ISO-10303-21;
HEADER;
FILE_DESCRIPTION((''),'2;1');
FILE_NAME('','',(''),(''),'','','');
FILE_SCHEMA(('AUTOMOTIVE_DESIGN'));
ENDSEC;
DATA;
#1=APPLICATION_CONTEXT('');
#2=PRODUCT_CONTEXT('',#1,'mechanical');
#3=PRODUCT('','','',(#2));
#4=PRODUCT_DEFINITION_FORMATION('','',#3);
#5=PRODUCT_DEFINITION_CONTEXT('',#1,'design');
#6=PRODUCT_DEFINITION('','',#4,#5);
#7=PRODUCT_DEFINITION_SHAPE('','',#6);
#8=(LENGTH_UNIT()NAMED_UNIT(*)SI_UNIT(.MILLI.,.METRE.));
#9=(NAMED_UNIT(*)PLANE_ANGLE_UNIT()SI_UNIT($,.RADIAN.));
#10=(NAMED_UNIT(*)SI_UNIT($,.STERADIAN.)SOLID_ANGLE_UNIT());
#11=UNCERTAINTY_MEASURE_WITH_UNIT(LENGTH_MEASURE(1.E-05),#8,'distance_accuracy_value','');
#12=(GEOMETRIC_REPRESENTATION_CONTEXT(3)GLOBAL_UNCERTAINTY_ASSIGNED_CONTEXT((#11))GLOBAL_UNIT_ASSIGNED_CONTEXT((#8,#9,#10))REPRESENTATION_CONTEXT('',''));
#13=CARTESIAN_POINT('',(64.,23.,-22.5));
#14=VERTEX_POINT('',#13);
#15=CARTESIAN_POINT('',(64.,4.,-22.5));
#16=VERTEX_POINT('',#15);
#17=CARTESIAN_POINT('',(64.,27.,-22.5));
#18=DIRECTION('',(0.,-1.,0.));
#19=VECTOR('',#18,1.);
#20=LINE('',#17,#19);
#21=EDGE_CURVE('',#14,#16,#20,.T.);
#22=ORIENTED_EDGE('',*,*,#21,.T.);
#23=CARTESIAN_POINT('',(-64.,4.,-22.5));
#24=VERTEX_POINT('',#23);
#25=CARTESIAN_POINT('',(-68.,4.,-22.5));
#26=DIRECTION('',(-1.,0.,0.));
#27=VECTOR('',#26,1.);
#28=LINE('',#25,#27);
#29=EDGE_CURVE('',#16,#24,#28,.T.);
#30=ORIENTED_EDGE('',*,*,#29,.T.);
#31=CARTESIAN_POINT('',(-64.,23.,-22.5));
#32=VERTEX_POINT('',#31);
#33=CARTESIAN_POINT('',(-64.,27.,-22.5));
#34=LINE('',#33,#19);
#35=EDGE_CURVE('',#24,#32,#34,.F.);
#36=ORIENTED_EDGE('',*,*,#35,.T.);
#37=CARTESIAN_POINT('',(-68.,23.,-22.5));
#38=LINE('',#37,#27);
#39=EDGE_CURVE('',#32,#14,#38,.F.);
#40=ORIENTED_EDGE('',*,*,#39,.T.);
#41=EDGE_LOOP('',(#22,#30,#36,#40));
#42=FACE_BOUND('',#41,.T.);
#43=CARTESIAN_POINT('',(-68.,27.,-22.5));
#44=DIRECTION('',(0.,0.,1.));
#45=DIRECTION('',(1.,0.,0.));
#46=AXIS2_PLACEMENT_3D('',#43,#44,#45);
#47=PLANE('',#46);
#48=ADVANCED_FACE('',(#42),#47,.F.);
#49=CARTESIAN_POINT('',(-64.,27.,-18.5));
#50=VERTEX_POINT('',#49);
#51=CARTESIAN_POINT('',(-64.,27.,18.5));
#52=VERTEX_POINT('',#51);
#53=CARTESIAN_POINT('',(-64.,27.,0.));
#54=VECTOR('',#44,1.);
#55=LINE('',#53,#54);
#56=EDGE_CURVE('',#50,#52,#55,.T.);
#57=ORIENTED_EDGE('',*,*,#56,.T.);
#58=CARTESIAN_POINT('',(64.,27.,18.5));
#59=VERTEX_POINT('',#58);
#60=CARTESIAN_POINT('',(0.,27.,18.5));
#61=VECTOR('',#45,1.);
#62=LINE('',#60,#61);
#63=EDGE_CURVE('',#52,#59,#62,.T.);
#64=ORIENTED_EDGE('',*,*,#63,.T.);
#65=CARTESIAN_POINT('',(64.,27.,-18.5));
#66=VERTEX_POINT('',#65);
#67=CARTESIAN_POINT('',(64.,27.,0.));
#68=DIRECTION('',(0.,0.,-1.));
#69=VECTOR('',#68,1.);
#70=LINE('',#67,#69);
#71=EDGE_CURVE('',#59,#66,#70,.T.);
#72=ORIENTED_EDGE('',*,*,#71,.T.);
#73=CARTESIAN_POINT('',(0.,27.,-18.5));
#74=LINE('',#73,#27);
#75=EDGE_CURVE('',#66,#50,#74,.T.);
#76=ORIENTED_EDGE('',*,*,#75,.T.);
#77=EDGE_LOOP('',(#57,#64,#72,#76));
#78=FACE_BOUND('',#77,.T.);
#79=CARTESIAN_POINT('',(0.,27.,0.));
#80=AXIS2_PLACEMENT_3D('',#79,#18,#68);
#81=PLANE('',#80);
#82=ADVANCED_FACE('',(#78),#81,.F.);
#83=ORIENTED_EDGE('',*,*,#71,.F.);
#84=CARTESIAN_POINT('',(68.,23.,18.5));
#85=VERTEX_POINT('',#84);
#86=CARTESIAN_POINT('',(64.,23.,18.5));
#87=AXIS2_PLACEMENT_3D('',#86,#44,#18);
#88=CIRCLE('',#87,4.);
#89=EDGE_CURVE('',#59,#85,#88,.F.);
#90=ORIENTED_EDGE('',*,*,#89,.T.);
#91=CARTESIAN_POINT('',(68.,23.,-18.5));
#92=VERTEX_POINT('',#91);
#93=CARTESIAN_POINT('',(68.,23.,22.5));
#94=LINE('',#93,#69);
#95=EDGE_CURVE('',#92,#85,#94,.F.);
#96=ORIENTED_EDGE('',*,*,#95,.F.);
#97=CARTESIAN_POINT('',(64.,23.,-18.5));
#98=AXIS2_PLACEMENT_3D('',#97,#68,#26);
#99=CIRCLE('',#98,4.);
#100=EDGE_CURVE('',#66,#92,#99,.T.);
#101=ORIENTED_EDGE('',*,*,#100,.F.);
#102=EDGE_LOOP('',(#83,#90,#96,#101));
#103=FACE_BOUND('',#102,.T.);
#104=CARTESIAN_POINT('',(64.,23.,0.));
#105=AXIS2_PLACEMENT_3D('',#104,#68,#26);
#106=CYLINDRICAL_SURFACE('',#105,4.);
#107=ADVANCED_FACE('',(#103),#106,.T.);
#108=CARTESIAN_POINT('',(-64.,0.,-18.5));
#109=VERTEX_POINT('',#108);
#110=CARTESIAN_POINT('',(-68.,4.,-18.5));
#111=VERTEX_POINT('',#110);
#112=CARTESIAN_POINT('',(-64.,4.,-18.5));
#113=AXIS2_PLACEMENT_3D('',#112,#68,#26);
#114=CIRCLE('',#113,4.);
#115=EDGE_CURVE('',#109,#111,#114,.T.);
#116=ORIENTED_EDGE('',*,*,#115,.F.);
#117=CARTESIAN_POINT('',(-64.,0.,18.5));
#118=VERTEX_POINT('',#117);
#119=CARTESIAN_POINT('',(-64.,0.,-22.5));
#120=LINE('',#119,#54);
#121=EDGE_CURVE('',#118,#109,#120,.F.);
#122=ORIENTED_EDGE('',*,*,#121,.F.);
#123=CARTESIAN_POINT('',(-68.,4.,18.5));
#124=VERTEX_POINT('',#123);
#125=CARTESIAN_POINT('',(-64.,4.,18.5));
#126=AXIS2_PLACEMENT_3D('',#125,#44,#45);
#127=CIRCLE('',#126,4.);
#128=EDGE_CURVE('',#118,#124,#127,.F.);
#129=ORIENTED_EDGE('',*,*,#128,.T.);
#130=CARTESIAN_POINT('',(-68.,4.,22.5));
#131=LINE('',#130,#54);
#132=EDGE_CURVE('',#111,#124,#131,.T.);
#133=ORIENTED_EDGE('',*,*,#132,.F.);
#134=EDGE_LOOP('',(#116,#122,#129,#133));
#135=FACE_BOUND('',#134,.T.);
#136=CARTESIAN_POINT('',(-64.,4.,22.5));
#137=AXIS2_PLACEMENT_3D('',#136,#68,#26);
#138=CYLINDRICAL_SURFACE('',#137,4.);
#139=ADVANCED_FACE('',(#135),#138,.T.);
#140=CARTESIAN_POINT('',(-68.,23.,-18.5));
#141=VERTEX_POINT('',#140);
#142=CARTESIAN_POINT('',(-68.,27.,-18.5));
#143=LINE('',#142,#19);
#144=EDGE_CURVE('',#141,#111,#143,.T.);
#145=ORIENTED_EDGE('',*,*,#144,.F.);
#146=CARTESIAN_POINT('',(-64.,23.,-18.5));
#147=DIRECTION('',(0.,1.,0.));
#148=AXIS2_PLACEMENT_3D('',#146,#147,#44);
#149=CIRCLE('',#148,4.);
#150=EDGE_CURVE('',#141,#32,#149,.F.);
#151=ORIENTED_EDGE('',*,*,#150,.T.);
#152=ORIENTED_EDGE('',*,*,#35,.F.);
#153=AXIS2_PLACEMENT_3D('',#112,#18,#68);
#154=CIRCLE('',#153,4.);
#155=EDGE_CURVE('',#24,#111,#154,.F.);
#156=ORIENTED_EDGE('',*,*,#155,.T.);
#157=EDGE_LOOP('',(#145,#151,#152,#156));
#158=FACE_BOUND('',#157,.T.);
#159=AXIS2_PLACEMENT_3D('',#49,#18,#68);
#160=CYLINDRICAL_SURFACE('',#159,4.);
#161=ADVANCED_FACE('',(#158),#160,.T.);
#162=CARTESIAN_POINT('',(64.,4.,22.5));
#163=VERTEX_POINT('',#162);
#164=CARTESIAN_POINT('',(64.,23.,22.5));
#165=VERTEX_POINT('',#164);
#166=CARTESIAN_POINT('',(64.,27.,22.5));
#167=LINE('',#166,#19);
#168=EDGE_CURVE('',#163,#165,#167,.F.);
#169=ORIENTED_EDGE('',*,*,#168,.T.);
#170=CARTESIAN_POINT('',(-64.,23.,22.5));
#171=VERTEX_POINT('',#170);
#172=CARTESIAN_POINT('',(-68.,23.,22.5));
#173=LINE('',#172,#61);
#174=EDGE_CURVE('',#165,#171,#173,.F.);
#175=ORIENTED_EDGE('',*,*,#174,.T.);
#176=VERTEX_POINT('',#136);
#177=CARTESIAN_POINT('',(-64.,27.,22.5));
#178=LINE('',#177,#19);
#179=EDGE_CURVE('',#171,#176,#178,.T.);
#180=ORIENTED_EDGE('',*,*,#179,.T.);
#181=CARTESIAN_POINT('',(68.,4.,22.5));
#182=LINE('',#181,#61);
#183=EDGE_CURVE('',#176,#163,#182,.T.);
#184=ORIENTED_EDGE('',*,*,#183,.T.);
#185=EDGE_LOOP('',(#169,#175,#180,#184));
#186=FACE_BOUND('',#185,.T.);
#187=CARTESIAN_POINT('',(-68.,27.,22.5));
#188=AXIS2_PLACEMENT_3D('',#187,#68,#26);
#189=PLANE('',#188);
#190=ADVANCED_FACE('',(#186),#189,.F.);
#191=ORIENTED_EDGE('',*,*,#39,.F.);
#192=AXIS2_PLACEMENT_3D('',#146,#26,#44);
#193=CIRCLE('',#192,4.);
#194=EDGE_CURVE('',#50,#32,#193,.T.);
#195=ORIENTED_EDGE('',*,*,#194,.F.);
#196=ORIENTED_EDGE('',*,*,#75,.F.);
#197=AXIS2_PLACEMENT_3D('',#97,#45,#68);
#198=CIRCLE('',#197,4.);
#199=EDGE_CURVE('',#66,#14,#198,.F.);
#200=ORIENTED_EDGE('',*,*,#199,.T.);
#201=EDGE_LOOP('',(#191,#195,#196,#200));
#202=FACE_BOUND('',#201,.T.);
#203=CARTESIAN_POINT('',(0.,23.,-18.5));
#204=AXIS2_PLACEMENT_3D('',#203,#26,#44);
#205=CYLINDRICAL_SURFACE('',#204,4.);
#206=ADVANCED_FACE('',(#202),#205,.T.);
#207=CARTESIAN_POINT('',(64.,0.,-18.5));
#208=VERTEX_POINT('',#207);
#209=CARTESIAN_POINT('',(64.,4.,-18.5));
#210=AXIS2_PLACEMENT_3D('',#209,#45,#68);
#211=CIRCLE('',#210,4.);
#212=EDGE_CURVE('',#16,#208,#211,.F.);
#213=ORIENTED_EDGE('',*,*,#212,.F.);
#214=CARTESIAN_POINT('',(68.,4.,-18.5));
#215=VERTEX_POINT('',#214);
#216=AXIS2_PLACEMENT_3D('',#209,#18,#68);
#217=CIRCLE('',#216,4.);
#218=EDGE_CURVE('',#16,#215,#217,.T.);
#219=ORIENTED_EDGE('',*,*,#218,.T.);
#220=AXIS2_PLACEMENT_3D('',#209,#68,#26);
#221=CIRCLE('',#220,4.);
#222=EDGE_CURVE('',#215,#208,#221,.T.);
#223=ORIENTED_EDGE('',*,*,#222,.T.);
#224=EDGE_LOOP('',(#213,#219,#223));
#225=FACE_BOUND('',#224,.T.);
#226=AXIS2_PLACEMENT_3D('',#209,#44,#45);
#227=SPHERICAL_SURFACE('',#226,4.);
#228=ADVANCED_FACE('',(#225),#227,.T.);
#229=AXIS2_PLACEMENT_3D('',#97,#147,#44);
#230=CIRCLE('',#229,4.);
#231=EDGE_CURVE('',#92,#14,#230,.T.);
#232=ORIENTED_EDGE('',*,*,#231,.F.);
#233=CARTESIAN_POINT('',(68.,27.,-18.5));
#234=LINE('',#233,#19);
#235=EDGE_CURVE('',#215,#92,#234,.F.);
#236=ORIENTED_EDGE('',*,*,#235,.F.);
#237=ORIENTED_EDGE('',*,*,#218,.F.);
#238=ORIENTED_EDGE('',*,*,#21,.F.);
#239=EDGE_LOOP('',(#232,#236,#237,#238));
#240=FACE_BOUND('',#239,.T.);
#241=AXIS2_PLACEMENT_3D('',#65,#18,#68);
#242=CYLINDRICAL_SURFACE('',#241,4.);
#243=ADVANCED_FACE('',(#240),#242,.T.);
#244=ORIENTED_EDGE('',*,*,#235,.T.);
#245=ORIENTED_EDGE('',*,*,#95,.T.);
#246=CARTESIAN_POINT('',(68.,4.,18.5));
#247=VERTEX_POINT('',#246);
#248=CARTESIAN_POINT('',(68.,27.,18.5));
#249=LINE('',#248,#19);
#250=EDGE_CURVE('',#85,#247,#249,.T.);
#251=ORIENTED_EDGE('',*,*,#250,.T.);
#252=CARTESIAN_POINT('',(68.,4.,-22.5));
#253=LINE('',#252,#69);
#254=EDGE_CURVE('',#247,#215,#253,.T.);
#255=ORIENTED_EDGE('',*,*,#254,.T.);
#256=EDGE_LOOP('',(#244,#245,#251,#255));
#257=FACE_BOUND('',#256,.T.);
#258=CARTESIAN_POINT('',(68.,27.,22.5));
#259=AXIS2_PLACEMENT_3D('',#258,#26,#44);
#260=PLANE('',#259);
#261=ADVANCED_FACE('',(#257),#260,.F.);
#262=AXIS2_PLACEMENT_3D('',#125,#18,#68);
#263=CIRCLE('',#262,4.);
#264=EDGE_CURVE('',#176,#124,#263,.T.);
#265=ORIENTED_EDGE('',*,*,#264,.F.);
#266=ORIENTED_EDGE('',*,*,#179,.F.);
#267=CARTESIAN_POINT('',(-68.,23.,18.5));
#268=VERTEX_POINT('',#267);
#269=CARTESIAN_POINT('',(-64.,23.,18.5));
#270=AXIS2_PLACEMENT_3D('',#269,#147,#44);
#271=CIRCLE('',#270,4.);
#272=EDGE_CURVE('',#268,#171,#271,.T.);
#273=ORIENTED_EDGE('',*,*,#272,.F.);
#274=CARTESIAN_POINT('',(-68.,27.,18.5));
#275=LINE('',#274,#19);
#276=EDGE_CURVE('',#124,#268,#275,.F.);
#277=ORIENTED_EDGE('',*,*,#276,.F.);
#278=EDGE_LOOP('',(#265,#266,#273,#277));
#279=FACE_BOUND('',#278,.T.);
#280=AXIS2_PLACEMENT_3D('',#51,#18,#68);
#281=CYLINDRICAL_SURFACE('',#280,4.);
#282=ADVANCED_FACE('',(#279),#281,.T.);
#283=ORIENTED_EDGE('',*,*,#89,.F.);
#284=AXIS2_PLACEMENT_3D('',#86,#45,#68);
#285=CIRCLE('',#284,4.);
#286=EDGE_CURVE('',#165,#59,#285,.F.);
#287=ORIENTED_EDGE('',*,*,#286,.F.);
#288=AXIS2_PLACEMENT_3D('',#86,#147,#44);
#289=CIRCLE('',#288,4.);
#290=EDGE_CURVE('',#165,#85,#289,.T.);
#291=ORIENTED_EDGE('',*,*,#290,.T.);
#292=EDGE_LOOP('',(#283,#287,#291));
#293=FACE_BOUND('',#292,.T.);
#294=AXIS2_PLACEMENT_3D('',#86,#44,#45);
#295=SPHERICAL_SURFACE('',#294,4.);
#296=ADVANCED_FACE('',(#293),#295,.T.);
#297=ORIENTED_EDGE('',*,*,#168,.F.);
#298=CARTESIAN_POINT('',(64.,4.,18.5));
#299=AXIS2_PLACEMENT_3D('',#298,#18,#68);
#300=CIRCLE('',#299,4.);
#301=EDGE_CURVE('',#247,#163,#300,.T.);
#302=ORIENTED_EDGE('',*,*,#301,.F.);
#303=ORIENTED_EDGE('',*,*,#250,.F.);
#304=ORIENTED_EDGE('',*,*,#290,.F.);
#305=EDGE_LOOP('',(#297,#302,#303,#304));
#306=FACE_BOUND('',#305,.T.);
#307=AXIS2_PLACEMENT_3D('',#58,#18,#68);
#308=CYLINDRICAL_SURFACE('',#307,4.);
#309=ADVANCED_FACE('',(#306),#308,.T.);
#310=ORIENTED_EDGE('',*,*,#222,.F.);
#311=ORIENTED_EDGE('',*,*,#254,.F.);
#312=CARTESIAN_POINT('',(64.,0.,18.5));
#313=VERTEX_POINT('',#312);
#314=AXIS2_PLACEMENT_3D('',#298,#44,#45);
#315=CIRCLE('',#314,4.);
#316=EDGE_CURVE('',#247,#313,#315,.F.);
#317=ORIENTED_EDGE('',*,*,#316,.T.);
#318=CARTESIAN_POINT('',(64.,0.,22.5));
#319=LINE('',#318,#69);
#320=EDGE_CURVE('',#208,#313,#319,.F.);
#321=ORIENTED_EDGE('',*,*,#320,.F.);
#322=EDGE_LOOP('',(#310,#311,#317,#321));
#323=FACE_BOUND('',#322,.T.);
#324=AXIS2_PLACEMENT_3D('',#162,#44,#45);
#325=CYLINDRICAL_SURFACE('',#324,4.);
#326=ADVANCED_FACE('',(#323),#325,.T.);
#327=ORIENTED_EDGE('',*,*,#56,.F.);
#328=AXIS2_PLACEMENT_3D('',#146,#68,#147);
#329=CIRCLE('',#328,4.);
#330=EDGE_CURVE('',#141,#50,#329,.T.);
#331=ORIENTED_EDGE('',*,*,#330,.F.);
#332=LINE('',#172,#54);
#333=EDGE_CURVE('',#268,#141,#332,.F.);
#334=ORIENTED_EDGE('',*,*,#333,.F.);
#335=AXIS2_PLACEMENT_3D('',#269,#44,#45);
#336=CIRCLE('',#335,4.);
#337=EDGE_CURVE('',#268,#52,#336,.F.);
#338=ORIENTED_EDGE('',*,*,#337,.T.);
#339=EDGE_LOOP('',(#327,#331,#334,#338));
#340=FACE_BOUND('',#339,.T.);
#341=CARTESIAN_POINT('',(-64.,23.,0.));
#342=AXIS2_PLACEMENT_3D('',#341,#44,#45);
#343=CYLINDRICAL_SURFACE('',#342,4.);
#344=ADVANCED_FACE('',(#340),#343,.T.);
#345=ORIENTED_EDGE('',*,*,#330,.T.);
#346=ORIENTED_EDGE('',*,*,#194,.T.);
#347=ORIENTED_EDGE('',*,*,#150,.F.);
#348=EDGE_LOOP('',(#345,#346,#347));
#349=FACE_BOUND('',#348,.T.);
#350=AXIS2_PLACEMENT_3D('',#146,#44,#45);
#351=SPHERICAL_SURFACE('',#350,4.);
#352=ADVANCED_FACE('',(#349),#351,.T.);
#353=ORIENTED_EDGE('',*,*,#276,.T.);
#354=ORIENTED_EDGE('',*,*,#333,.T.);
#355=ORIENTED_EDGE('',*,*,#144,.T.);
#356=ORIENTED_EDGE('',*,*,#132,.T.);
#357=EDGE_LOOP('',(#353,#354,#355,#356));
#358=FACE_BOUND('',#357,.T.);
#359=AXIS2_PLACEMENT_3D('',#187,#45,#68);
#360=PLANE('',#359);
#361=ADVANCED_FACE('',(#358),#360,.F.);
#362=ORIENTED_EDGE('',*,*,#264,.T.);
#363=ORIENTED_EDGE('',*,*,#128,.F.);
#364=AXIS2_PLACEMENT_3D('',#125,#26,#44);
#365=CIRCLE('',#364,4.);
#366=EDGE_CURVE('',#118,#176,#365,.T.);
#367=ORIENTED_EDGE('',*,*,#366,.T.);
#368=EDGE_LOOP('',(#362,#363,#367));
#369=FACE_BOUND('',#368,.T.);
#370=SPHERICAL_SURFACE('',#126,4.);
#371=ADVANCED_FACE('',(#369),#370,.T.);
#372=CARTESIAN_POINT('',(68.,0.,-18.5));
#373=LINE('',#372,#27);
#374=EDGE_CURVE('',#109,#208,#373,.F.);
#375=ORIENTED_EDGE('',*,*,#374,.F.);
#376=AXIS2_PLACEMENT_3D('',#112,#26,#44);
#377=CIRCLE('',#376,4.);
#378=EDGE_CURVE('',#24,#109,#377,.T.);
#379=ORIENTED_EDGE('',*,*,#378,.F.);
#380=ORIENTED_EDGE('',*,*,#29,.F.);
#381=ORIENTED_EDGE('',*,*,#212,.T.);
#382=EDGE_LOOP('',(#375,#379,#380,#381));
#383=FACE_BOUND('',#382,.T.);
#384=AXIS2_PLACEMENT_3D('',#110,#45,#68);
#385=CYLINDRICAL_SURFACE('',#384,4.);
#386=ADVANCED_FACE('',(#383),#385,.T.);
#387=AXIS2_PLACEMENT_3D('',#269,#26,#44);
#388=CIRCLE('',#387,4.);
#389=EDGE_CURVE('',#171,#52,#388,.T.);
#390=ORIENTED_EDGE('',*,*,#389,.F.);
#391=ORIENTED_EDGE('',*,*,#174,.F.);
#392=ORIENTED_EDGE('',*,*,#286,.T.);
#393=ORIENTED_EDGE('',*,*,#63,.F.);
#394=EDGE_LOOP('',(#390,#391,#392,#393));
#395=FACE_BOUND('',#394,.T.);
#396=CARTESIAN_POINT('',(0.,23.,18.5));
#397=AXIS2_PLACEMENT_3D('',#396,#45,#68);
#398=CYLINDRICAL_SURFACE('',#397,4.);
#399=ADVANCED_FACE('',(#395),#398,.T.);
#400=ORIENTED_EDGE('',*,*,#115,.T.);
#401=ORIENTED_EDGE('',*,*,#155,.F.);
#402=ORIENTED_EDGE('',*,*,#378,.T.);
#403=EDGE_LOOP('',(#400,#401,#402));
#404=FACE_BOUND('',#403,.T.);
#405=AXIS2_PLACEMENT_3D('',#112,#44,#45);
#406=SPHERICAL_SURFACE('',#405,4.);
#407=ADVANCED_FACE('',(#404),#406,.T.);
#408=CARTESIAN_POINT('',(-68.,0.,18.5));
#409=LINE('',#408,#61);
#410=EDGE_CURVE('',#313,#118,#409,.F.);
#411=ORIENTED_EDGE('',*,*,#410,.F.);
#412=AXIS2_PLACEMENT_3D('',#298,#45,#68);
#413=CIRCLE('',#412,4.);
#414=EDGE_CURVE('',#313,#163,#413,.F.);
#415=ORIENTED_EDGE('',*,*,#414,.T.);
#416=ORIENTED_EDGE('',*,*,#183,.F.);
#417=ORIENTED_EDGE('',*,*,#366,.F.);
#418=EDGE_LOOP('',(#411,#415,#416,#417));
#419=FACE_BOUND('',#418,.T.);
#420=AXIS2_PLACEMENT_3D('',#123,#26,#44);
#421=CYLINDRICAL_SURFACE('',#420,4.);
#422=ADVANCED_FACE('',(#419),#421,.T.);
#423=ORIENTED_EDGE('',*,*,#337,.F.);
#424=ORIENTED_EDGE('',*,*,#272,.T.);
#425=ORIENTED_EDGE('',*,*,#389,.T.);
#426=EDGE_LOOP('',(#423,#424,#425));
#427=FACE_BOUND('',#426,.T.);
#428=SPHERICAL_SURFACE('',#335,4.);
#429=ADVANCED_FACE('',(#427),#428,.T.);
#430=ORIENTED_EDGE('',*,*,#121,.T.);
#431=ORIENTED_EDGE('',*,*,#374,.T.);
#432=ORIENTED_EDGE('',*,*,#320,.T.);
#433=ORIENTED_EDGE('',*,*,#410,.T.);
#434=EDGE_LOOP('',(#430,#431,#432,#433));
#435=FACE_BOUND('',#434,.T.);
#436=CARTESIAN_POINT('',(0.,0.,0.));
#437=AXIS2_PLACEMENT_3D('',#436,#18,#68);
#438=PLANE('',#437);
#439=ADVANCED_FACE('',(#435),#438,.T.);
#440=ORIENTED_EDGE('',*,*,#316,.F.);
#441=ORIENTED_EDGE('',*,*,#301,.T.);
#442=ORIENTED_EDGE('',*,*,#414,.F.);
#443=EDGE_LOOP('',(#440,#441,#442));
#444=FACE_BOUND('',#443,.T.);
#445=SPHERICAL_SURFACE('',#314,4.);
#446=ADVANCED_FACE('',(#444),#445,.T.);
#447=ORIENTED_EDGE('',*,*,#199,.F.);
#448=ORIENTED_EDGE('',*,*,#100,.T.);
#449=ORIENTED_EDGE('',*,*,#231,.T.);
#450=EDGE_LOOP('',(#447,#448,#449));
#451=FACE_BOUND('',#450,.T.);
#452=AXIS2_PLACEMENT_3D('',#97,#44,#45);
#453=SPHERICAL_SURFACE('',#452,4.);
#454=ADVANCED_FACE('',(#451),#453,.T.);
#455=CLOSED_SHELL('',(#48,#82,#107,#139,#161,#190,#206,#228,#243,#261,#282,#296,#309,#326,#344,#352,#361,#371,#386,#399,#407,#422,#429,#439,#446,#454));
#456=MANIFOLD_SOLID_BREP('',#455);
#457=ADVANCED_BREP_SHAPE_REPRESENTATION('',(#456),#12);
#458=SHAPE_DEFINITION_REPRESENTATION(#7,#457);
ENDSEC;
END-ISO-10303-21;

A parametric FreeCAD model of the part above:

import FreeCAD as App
import Part
import Sketcher
from FreeCAD import Vector
Q = App.Units.Quantity

doc = App.newDocument("Part")
body = doc.addObject("PartDesign::Body", "Body")

sketch1 = doc.addObject("Sketcher::SketchObject", "Sketch")
body.addObject(sketch1)
sketch1.AttachmentSupport = (doc.XZ_Plane, [""])
sketch1.MapMode = "FlatFace"
sketch1.addGeometry([
    Part.LineSegment(Vector(-68, -22, 0), Vector(-68, 22, 0)),
    Part.LineSegment(Vector(-68, 22, 0), Vector(68, 22, 0)),
    Part.LineSegment(Vector(68, 22, 0), Vector(68, -22, 0)),
    Part.LineSegment(Vector(68, -22, 0), Vector(-68, -22, 0)),
], False)
sketch1.addConstraint([
    Sketcher.Constraint("Coincident", 0, 2, 1, 1),
    Sketcher.Constraint("Coincident", 1, 2, 2, 1),
    Sketcher.Constraint("Coincident", 2, 2, 3, 1),
    Sketcher.Constraint("Coincident", 3, 2, 0, 1),
    Sketcher.Constraint("Vertical", 0),
    Sketcher.Constraint("Horizontal", 1),
    Sketcher.Constraint("Vertical", 2),
    Sketcher.Constraint("Horizontal", 3),
    Sketcher.Constraint("Symmetric", 0, 2, 2, 2, -1, 1),
    Sketcher.Constraint("DistanceX", 1, 1, 1, 2, Q("136 mm")),
    Sketcher.Constraint("DistanceY", 0, 1, 0, 2, Q("45 mm")),
])
pad1 = doc.addObject("PartDesign::Pad", "Pad")
body.addObject(pad1)
pad1.Profile = sketch1
pad1.Length = 27
pad1.Reversed = True
doc.recompute()

fillet = doc.addObject("PartDesign::Fillet", "Fillet")
body.addObject(fillet)
fillet.Base = (pad1, ["Edge1"])
fillet.UseAllEdges = True
fillet.Radius = 4

doc.recompute()
